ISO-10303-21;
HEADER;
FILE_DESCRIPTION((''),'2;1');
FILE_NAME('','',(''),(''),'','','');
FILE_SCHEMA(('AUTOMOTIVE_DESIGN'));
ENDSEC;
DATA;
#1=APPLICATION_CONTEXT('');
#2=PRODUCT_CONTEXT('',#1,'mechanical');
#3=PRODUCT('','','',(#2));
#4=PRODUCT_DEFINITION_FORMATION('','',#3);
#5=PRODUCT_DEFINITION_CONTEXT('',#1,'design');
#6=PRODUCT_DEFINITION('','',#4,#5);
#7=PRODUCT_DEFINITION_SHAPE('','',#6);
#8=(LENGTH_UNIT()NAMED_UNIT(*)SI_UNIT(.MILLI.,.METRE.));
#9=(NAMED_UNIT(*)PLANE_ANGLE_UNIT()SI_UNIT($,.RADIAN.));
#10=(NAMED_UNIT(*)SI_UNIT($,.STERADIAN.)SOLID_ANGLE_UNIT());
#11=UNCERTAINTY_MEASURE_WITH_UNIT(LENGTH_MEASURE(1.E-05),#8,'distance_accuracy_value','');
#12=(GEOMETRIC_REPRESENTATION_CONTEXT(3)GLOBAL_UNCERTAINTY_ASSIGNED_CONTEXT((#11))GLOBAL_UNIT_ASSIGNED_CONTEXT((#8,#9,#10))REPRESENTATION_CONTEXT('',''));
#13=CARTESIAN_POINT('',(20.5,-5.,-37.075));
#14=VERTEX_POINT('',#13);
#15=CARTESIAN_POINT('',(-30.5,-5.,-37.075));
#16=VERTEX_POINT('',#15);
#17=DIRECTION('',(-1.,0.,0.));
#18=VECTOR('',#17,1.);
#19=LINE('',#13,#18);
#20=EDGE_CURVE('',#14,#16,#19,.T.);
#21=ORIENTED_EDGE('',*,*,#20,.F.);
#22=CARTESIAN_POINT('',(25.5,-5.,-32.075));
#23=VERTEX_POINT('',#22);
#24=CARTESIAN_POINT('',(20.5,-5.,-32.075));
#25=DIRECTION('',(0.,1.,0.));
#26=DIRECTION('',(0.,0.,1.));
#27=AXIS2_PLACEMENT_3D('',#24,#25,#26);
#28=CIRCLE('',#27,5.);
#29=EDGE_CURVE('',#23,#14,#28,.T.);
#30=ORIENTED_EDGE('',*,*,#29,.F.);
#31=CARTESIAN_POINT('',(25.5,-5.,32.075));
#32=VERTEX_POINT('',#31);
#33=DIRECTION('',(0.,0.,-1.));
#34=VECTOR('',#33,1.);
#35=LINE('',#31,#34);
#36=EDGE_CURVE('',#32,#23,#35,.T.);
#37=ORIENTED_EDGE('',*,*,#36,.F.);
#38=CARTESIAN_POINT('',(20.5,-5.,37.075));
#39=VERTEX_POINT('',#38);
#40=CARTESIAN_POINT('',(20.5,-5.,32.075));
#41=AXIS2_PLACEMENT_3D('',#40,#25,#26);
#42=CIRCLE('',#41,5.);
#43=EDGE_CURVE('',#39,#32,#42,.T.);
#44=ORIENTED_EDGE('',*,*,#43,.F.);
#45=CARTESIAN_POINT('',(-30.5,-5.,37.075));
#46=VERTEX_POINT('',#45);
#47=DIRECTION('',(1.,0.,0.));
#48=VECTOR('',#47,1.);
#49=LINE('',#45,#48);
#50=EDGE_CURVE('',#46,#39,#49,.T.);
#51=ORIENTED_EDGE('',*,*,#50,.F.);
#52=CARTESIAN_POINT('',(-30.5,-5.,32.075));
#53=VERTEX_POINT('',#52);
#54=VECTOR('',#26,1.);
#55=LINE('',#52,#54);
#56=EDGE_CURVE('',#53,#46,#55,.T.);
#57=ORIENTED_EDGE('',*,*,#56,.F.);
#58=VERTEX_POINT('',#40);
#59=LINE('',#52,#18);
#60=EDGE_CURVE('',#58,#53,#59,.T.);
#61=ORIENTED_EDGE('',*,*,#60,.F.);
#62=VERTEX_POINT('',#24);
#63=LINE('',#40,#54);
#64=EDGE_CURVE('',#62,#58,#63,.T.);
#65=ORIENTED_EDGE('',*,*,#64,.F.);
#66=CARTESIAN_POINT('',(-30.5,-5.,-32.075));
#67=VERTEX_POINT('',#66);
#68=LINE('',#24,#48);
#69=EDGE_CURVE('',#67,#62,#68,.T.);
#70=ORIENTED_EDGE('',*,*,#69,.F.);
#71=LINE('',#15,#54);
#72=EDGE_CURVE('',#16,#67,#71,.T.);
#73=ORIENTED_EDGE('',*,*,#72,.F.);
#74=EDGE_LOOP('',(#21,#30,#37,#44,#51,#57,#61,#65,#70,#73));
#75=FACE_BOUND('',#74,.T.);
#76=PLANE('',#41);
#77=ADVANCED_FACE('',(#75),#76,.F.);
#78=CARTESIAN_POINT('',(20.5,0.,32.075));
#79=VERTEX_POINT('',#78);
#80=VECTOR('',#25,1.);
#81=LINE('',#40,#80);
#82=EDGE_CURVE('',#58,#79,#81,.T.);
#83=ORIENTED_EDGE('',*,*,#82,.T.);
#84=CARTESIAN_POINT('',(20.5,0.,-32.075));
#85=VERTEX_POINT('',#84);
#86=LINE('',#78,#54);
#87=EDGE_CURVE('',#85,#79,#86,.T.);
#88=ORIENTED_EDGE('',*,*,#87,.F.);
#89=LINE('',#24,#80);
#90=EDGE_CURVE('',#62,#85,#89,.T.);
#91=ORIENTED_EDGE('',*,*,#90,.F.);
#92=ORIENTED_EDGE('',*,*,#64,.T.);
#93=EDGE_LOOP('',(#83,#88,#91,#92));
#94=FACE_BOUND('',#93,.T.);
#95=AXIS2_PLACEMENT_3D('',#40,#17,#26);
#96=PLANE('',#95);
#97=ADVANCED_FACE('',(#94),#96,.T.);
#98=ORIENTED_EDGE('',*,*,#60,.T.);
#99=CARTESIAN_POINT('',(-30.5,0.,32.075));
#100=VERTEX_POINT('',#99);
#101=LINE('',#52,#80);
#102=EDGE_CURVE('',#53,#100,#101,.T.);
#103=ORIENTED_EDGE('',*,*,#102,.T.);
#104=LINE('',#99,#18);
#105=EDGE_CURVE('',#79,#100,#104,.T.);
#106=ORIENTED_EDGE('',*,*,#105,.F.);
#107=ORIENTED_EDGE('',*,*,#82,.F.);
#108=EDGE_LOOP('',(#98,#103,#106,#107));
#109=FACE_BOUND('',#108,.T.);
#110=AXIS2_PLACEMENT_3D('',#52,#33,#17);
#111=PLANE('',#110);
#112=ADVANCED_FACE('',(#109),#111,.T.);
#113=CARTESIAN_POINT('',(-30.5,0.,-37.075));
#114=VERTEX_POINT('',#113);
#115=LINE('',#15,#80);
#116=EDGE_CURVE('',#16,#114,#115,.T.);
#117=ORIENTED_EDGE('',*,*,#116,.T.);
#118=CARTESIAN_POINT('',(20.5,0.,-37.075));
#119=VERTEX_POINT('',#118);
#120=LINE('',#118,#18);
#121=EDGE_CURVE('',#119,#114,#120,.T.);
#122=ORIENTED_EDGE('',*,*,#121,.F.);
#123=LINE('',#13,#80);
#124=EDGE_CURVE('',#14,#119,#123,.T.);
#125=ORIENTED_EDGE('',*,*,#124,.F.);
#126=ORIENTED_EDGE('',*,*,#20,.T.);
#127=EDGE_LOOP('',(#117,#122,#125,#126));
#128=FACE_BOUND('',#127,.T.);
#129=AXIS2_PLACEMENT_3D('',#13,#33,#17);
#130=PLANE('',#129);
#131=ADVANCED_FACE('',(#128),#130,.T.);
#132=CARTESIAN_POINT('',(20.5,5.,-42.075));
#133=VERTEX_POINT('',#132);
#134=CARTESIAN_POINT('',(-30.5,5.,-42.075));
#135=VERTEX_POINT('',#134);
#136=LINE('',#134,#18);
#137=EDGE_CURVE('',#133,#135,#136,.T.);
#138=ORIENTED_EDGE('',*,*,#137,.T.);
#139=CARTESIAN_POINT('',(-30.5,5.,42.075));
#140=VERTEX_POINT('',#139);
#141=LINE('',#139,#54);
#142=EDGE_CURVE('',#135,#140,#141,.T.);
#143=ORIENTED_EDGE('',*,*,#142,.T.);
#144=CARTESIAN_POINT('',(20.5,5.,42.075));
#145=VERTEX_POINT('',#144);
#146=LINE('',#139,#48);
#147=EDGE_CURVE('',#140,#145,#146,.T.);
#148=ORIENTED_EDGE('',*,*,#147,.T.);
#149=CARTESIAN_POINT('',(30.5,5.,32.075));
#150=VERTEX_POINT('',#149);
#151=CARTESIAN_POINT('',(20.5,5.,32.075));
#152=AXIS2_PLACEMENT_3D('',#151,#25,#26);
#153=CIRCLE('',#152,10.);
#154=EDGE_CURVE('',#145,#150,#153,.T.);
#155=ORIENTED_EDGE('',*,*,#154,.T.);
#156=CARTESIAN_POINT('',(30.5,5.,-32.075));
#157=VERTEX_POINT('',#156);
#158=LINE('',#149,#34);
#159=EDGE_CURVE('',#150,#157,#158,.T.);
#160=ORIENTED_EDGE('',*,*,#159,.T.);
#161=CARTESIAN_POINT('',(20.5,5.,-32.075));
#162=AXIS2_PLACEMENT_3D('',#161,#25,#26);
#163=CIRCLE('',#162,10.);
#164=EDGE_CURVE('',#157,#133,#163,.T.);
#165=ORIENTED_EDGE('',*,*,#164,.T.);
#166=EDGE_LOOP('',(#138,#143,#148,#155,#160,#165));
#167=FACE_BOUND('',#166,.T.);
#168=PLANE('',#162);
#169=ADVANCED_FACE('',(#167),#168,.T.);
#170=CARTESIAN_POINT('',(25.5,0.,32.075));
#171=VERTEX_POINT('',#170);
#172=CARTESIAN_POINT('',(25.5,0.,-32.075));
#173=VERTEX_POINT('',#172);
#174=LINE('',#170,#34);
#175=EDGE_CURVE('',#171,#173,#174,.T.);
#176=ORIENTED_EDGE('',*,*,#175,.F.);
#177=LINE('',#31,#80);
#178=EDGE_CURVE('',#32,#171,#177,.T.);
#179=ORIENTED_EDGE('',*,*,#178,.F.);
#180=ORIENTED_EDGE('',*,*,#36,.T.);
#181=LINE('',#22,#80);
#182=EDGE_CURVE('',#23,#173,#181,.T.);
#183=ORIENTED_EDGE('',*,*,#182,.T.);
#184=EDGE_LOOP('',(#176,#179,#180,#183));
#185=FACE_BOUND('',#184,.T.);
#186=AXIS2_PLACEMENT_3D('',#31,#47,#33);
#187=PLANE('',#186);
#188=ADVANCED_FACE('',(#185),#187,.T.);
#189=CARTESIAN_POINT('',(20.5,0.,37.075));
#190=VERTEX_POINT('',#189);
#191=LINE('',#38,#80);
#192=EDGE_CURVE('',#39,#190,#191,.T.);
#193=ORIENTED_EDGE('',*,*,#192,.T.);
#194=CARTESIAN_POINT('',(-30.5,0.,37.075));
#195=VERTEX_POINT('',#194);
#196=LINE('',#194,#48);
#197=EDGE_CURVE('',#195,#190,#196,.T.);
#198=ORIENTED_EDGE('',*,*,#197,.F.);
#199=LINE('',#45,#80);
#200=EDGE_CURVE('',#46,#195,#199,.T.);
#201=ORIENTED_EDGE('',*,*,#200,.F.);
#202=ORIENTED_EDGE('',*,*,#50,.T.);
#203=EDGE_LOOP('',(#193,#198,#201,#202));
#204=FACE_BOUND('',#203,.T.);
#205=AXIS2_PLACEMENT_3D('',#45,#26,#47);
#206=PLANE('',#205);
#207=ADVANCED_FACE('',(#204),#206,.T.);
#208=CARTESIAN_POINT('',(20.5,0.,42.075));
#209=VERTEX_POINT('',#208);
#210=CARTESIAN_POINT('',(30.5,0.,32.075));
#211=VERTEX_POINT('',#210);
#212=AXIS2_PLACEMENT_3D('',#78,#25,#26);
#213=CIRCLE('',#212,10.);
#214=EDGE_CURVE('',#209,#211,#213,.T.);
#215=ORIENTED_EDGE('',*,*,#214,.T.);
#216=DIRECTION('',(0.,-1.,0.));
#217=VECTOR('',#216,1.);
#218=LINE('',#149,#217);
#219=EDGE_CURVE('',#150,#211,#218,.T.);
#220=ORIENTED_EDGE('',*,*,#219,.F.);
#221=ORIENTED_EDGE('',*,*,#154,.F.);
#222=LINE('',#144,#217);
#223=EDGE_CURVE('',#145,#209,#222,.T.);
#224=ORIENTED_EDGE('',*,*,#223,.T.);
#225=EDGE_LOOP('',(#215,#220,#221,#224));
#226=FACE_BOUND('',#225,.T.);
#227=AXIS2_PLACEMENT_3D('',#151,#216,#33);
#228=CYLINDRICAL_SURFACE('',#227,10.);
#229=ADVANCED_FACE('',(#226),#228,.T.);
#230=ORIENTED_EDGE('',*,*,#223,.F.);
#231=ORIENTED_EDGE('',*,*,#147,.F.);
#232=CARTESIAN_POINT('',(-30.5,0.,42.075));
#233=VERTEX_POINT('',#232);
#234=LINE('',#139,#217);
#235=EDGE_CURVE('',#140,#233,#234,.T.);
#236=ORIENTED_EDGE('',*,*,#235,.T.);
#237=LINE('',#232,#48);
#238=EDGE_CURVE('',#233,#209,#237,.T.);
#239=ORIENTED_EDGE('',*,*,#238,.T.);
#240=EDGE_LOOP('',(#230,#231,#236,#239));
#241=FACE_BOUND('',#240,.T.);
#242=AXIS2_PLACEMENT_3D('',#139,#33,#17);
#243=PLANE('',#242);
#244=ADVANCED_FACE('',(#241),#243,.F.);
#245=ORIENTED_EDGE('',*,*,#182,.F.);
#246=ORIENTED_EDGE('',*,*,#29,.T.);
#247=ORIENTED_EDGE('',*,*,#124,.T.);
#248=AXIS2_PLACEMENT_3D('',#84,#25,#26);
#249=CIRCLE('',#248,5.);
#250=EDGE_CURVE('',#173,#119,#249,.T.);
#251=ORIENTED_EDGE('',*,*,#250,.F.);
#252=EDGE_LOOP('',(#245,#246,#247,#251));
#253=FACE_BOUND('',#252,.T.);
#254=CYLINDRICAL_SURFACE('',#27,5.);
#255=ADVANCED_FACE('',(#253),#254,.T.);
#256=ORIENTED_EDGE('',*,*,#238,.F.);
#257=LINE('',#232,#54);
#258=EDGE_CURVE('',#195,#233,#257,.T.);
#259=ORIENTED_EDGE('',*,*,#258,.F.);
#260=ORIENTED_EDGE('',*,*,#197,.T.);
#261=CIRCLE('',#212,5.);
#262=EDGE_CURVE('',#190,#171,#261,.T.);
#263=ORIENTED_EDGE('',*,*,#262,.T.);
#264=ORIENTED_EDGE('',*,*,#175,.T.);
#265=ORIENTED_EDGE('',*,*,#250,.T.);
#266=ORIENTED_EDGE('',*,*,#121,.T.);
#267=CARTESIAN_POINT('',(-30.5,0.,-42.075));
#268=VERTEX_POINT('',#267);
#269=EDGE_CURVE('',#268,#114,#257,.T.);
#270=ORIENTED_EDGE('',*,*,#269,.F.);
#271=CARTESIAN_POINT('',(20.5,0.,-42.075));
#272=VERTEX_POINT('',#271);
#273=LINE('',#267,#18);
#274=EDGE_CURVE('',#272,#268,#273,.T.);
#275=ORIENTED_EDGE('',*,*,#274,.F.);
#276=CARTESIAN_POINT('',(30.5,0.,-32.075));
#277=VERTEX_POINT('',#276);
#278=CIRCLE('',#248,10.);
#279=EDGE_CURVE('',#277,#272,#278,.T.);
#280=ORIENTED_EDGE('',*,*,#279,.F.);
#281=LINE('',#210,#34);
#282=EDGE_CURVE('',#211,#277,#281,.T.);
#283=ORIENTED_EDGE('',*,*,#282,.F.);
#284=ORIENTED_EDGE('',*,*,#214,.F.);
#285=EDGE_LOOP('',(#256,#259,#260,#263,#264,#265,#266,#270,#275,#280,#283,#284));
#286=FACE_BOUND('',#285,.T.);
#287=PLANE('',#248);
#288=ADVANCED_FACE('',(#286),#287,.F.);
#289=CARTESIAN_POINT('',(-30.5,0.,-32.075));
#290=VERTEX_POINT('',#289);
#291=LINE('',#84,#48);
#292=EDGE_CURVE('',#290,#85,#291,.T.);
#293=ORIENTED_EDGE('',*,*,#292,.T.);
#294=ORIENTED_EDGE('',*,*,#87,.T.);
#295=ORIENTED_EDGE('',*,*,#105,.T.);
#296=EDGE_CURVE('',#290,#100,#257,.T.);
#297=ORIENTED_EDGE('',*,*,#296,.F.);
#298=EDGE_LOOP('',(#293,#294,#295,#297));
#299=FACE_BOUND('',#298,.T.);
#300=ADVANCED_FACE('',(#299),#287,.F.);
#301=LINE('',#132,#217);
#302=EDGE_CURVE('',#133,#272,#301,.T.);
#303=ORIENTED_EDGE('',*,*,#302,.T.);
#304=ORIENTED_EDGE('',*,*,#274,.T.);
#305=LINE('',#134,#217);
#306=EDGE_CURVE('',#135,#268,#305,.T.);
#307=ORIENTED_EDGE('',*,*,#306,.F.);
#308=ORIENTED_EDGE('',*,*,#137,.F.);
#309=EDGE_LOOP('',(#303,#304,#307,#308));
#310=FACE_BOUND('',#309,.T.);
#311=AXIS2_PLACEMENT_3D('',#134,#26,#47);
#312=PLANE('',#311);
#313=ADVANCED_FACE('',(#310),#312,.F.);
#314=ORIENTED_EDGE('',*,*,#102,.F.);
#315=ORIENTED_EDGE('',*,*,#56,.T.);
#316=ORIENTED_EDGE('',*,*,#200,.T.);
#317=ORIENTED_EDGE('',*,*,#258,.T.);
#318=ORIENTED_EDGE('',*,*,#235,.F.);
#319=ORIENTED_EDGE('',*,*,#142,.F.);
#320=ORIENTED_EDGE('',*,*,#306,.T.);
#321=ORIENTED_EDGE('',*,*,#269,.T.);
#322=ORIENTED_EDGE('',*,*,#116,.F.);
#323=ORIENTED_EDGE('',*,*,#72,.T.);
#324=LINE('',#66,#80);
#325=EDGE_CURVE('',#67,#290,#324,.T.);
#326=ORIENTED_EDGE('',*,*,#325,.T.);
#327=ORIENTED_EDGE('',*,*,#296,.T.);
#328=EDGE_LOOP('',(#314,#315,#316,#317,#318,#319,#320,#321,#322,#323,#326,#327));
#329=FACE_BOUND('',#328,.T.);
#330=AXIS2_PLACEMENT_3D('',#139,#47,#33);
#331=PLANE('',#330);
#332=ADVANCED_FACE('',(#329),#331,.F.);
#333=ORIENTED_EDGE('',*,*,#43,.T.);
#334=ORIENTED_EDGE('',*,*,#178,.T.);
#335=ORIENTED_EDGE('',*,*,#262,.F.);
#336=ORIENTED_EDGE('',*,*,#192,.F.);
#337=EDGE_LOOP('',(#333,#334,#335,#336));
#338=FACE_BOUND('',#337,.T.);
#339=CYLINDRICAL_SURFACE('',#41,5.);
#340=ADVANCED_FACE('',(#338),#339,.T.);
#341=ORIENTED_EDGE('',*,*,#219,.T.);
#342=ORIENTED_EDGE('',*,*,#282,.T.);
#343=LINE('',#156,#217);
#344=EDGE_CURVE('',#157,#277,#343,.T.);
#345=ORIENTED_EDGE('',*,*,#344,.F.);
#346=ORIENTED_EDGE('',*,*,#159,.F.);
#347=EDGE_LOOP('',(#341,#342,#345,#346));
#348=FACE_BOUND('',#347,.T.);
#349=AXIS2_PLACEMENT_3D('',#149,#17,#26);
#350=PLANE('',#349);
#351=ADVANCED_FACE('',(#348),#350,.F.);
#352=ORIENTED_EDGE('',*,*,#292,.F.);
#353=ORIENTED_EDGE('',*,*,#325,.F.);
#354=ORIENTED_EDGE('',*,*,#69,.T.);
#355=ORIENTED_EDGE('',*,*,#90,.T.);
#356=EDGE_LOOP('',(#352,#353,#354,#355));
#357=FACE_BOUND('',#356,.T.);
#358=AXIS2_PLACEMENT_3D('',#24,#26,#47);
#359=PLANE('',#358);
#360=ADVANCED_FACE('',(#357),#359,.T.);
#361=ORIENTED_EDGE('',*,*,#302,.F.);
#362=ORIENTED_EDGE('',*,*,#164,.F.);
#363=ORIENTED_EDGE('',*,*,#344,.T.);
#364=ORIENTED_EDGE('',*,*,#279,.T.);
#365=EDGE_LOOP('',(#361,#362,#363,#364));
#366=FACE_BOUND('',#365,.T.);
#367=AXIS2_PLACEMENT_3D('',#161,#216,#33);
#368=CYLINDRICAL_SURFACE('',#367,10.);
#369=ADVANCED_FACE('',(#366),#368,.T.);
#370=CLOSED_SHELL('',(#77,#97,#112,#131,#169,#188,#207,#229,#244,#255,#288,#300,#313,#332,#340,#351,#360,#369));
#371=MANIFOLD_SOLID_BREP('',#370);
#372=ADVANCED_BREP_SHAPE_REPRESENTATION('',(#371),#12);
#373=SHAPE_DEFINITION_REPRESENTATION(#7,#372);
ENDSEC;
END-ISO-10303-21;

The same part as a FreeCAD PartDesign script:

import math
import FreeCAD as App
import Part
import Sketcher

V = App.Vector
Q = App.Units.Quantity

doc = App.newDocument("Part")
body = doc.addObject("PartDesign::Body", "Body")

# Sketch on XZ plane
sketch1 = body.newObject("Sketcher::SketchObject", "Sketch")
sketch1.AttachmentSupport = (doc.getObject("XZ_Plane"), [""])
sketch1.MapMode = "FlatFace"
sketch1.addGeometry([
    Part.LineSegment(V(-30.5, 42.075, 0), V(20.5, 42.075, 0)),  # 0
    Part.ArcOfCircle(Part.Circle(V(20.5, 32.075, 0), V(0, 0, 1), 10), math.radians(0), math.radians(90)),  # 1
    Part.LineSegment(V(30.5, 32.075, 0), V(30.5, -32.075, 0)),  # 2
    Part.ArcOfCircle(Part.Circle(V(20.5, -32.075, 0), V(0, 0, 1), 10), math.radians(-90), math.radians(0)),  # 3
    Part.LineSegment(V(20.5, -42.075, 0), V(-30.5, -42.075, 0)),  # 4
    Part.LineSegment(V(-30.5, -42.075, 0), V(-30.5, 42.075, 0)),  # 5
], False)
sketch1.addConstraint([
    Sketcher.Constraint("Tangent", 0, 2, 1, 2),
    Sketcher.Constraint("Tangent", 1, 1, 2, 1),
    Sketcher.Constraint("Tangent", 2, 2, 3, 2),
    Sketcher.Constraint("Tangent", 3, 1, 4, 1),
    Sketcher.Constraint("Coincident", 4, 2, 5, 1),
    Sketcher.Constraint("Coincident", 5, 2, 0, 1),
    Sketcher.Constraint("Horizontal", 0),
    Sketcher.Constraint("Vertical", 2),
    Sketcher.Constraint("Horizontal", 4),
    Sketcher.Constraint("Vertical", 5),
    Sketcher.Constraint("Equal", 1, 3),
    Sketcher.Constraint("Radius", 1, Q("10 mm")),
    Sketcher.Constraint("DistanceX", 0, 1, 0, 2, Q("51 mm")),
    Sketcher.Constraint("DistanceY", 2, 2, 2, 1, Q("64.15 mm")),
    Sketcher.Constraint("DistanceX", -1, 1, 1, 3, Q("20.5 mm")),
    Sketcher.Constraint("DistanceY", -1, 1, 1, 3, Q("32.075 mm")),
])
pad1 = body.newObject("PartDesign::Pad", "Pad")
pad1.Profile = sketch1
pad1.Length = 5
pad1.Reversed = True

# Sketch on XZ plane
sketch2 = body.newObject("Sketcher::SketchObject", "Sketch001")
sketch2.AttachmentSupport = (doc.getObject("XZ_Plane"), [""])
sketch2.MapMode = "FlatFace"
sketch2.addGeometry([
    Part.LineSegment(V(20.5, 32.075, 0), V(-30.5, 32.075, 0)),  # 0
    Part.LineSegment(V(-30.5, 32.075, 0), V(-30.5, 37.075, 0)),  # 1
    Part.LineSegment(V(-30.5, 37.075, 0), V(20.5, 37.075, 0)),  # 2
    Part.ArcOfCircle(Part.Circle(V(20.5, 32.075, 0), V(0, 0, 1), 5), math.radians(0), math.radians(90)),  # 3
    Part.LineSegment(V(25.5, 32.075, 0), V(25.5, -32.075, 0)),  # 4
    Part.ArcOfCircle(Part.Circle(V(20.5, -32.075, 0), V(0, 0, 1), 5), math.radians(-90), math.radians(0)),  # 5
    Part.LineSegment(V(20.5, -37.075, 0), V(-30.5, -37.075, 0)),  # 6
    Part.LineSegment(V(-30.5, -37.075, 0), V(-30.5, -32.075, 0)),  # 7
    Part.LineSegment(V(-30.5, -32.075, 0), V(20.5, -32.075, 0)),  # 8
    Part.LineSegment(V(20.5, -32.075, 0), V(20.5, 32.075, 0)),  # 9
], False)
sketch2.addConstraint([
    Sketcher.Constraint("Coincident", 0, 2, 1, 1),
    Sketcher.Constraint("Coincident", 1, 2, 2, 1),
    Sketcher.Constraint("Tangent", 2, 2, 3, 2),
    Sketcher.Constraint("Tangent", 3, 1, 4, 1),
    Sketcher.Constraint("Tangent", 4, 2, 5, 2),
    Sketcher.Constraint("Tangent", 5, 1, 6, 1),
    Sketcher.Constraint("Coincident", 6, 2, 7, 1),
    Sketcher.Constraint("Coincident", 7, 2, 8, 1),
    Sketcher.Constraint("Coincident", 8, 2, 9, 1),
    Sketcher.Constraint("Coincident", 9, 2, 0, 1),
    Sketcher.Constraint("Horizontal", 0),
    Sketcher.Constraint("Vertical", 1),
    Sketcher.Constraint("Horizontal", 2),
    Sketcher.Constraint("Vertical", 4),
    Sketcher.Constraint("Horizontal", 6),
    Sketcher.Constraint("Vertical", 7),
    Sketcher.Constraint("Horizontal", 8),
    Sketcher.Constraint("Vertical", 9),
    Sketcher.Constraint("Coincident", 8, 2, 5, 3),
    Sketcher.Constraint("Coincident", 9, 2, 3, 3),
    Sketcher.Constraint("Symmetric", 1, 2, 6, 2, -1),
    Sketcher.Constraint("Radius", 3, Q("5 mm")),
    Sketcher.Constraint("DistanceX", 0, 2, 0, 1, Q("51 mm")),
    Sketcher.Constraint("DistanceY", 4, 2, 4, 1, Q("64.15 mm")),
    Sketcher.Constraint("DistanceX", -1, 1, 3, 3, Q("20.5 mm")),
])
pad2 = body.newObject("PartDesign::Pad", "Pad001")
pad2.Profile = sketch2
pad2.Length = 5

doc.recompute()
